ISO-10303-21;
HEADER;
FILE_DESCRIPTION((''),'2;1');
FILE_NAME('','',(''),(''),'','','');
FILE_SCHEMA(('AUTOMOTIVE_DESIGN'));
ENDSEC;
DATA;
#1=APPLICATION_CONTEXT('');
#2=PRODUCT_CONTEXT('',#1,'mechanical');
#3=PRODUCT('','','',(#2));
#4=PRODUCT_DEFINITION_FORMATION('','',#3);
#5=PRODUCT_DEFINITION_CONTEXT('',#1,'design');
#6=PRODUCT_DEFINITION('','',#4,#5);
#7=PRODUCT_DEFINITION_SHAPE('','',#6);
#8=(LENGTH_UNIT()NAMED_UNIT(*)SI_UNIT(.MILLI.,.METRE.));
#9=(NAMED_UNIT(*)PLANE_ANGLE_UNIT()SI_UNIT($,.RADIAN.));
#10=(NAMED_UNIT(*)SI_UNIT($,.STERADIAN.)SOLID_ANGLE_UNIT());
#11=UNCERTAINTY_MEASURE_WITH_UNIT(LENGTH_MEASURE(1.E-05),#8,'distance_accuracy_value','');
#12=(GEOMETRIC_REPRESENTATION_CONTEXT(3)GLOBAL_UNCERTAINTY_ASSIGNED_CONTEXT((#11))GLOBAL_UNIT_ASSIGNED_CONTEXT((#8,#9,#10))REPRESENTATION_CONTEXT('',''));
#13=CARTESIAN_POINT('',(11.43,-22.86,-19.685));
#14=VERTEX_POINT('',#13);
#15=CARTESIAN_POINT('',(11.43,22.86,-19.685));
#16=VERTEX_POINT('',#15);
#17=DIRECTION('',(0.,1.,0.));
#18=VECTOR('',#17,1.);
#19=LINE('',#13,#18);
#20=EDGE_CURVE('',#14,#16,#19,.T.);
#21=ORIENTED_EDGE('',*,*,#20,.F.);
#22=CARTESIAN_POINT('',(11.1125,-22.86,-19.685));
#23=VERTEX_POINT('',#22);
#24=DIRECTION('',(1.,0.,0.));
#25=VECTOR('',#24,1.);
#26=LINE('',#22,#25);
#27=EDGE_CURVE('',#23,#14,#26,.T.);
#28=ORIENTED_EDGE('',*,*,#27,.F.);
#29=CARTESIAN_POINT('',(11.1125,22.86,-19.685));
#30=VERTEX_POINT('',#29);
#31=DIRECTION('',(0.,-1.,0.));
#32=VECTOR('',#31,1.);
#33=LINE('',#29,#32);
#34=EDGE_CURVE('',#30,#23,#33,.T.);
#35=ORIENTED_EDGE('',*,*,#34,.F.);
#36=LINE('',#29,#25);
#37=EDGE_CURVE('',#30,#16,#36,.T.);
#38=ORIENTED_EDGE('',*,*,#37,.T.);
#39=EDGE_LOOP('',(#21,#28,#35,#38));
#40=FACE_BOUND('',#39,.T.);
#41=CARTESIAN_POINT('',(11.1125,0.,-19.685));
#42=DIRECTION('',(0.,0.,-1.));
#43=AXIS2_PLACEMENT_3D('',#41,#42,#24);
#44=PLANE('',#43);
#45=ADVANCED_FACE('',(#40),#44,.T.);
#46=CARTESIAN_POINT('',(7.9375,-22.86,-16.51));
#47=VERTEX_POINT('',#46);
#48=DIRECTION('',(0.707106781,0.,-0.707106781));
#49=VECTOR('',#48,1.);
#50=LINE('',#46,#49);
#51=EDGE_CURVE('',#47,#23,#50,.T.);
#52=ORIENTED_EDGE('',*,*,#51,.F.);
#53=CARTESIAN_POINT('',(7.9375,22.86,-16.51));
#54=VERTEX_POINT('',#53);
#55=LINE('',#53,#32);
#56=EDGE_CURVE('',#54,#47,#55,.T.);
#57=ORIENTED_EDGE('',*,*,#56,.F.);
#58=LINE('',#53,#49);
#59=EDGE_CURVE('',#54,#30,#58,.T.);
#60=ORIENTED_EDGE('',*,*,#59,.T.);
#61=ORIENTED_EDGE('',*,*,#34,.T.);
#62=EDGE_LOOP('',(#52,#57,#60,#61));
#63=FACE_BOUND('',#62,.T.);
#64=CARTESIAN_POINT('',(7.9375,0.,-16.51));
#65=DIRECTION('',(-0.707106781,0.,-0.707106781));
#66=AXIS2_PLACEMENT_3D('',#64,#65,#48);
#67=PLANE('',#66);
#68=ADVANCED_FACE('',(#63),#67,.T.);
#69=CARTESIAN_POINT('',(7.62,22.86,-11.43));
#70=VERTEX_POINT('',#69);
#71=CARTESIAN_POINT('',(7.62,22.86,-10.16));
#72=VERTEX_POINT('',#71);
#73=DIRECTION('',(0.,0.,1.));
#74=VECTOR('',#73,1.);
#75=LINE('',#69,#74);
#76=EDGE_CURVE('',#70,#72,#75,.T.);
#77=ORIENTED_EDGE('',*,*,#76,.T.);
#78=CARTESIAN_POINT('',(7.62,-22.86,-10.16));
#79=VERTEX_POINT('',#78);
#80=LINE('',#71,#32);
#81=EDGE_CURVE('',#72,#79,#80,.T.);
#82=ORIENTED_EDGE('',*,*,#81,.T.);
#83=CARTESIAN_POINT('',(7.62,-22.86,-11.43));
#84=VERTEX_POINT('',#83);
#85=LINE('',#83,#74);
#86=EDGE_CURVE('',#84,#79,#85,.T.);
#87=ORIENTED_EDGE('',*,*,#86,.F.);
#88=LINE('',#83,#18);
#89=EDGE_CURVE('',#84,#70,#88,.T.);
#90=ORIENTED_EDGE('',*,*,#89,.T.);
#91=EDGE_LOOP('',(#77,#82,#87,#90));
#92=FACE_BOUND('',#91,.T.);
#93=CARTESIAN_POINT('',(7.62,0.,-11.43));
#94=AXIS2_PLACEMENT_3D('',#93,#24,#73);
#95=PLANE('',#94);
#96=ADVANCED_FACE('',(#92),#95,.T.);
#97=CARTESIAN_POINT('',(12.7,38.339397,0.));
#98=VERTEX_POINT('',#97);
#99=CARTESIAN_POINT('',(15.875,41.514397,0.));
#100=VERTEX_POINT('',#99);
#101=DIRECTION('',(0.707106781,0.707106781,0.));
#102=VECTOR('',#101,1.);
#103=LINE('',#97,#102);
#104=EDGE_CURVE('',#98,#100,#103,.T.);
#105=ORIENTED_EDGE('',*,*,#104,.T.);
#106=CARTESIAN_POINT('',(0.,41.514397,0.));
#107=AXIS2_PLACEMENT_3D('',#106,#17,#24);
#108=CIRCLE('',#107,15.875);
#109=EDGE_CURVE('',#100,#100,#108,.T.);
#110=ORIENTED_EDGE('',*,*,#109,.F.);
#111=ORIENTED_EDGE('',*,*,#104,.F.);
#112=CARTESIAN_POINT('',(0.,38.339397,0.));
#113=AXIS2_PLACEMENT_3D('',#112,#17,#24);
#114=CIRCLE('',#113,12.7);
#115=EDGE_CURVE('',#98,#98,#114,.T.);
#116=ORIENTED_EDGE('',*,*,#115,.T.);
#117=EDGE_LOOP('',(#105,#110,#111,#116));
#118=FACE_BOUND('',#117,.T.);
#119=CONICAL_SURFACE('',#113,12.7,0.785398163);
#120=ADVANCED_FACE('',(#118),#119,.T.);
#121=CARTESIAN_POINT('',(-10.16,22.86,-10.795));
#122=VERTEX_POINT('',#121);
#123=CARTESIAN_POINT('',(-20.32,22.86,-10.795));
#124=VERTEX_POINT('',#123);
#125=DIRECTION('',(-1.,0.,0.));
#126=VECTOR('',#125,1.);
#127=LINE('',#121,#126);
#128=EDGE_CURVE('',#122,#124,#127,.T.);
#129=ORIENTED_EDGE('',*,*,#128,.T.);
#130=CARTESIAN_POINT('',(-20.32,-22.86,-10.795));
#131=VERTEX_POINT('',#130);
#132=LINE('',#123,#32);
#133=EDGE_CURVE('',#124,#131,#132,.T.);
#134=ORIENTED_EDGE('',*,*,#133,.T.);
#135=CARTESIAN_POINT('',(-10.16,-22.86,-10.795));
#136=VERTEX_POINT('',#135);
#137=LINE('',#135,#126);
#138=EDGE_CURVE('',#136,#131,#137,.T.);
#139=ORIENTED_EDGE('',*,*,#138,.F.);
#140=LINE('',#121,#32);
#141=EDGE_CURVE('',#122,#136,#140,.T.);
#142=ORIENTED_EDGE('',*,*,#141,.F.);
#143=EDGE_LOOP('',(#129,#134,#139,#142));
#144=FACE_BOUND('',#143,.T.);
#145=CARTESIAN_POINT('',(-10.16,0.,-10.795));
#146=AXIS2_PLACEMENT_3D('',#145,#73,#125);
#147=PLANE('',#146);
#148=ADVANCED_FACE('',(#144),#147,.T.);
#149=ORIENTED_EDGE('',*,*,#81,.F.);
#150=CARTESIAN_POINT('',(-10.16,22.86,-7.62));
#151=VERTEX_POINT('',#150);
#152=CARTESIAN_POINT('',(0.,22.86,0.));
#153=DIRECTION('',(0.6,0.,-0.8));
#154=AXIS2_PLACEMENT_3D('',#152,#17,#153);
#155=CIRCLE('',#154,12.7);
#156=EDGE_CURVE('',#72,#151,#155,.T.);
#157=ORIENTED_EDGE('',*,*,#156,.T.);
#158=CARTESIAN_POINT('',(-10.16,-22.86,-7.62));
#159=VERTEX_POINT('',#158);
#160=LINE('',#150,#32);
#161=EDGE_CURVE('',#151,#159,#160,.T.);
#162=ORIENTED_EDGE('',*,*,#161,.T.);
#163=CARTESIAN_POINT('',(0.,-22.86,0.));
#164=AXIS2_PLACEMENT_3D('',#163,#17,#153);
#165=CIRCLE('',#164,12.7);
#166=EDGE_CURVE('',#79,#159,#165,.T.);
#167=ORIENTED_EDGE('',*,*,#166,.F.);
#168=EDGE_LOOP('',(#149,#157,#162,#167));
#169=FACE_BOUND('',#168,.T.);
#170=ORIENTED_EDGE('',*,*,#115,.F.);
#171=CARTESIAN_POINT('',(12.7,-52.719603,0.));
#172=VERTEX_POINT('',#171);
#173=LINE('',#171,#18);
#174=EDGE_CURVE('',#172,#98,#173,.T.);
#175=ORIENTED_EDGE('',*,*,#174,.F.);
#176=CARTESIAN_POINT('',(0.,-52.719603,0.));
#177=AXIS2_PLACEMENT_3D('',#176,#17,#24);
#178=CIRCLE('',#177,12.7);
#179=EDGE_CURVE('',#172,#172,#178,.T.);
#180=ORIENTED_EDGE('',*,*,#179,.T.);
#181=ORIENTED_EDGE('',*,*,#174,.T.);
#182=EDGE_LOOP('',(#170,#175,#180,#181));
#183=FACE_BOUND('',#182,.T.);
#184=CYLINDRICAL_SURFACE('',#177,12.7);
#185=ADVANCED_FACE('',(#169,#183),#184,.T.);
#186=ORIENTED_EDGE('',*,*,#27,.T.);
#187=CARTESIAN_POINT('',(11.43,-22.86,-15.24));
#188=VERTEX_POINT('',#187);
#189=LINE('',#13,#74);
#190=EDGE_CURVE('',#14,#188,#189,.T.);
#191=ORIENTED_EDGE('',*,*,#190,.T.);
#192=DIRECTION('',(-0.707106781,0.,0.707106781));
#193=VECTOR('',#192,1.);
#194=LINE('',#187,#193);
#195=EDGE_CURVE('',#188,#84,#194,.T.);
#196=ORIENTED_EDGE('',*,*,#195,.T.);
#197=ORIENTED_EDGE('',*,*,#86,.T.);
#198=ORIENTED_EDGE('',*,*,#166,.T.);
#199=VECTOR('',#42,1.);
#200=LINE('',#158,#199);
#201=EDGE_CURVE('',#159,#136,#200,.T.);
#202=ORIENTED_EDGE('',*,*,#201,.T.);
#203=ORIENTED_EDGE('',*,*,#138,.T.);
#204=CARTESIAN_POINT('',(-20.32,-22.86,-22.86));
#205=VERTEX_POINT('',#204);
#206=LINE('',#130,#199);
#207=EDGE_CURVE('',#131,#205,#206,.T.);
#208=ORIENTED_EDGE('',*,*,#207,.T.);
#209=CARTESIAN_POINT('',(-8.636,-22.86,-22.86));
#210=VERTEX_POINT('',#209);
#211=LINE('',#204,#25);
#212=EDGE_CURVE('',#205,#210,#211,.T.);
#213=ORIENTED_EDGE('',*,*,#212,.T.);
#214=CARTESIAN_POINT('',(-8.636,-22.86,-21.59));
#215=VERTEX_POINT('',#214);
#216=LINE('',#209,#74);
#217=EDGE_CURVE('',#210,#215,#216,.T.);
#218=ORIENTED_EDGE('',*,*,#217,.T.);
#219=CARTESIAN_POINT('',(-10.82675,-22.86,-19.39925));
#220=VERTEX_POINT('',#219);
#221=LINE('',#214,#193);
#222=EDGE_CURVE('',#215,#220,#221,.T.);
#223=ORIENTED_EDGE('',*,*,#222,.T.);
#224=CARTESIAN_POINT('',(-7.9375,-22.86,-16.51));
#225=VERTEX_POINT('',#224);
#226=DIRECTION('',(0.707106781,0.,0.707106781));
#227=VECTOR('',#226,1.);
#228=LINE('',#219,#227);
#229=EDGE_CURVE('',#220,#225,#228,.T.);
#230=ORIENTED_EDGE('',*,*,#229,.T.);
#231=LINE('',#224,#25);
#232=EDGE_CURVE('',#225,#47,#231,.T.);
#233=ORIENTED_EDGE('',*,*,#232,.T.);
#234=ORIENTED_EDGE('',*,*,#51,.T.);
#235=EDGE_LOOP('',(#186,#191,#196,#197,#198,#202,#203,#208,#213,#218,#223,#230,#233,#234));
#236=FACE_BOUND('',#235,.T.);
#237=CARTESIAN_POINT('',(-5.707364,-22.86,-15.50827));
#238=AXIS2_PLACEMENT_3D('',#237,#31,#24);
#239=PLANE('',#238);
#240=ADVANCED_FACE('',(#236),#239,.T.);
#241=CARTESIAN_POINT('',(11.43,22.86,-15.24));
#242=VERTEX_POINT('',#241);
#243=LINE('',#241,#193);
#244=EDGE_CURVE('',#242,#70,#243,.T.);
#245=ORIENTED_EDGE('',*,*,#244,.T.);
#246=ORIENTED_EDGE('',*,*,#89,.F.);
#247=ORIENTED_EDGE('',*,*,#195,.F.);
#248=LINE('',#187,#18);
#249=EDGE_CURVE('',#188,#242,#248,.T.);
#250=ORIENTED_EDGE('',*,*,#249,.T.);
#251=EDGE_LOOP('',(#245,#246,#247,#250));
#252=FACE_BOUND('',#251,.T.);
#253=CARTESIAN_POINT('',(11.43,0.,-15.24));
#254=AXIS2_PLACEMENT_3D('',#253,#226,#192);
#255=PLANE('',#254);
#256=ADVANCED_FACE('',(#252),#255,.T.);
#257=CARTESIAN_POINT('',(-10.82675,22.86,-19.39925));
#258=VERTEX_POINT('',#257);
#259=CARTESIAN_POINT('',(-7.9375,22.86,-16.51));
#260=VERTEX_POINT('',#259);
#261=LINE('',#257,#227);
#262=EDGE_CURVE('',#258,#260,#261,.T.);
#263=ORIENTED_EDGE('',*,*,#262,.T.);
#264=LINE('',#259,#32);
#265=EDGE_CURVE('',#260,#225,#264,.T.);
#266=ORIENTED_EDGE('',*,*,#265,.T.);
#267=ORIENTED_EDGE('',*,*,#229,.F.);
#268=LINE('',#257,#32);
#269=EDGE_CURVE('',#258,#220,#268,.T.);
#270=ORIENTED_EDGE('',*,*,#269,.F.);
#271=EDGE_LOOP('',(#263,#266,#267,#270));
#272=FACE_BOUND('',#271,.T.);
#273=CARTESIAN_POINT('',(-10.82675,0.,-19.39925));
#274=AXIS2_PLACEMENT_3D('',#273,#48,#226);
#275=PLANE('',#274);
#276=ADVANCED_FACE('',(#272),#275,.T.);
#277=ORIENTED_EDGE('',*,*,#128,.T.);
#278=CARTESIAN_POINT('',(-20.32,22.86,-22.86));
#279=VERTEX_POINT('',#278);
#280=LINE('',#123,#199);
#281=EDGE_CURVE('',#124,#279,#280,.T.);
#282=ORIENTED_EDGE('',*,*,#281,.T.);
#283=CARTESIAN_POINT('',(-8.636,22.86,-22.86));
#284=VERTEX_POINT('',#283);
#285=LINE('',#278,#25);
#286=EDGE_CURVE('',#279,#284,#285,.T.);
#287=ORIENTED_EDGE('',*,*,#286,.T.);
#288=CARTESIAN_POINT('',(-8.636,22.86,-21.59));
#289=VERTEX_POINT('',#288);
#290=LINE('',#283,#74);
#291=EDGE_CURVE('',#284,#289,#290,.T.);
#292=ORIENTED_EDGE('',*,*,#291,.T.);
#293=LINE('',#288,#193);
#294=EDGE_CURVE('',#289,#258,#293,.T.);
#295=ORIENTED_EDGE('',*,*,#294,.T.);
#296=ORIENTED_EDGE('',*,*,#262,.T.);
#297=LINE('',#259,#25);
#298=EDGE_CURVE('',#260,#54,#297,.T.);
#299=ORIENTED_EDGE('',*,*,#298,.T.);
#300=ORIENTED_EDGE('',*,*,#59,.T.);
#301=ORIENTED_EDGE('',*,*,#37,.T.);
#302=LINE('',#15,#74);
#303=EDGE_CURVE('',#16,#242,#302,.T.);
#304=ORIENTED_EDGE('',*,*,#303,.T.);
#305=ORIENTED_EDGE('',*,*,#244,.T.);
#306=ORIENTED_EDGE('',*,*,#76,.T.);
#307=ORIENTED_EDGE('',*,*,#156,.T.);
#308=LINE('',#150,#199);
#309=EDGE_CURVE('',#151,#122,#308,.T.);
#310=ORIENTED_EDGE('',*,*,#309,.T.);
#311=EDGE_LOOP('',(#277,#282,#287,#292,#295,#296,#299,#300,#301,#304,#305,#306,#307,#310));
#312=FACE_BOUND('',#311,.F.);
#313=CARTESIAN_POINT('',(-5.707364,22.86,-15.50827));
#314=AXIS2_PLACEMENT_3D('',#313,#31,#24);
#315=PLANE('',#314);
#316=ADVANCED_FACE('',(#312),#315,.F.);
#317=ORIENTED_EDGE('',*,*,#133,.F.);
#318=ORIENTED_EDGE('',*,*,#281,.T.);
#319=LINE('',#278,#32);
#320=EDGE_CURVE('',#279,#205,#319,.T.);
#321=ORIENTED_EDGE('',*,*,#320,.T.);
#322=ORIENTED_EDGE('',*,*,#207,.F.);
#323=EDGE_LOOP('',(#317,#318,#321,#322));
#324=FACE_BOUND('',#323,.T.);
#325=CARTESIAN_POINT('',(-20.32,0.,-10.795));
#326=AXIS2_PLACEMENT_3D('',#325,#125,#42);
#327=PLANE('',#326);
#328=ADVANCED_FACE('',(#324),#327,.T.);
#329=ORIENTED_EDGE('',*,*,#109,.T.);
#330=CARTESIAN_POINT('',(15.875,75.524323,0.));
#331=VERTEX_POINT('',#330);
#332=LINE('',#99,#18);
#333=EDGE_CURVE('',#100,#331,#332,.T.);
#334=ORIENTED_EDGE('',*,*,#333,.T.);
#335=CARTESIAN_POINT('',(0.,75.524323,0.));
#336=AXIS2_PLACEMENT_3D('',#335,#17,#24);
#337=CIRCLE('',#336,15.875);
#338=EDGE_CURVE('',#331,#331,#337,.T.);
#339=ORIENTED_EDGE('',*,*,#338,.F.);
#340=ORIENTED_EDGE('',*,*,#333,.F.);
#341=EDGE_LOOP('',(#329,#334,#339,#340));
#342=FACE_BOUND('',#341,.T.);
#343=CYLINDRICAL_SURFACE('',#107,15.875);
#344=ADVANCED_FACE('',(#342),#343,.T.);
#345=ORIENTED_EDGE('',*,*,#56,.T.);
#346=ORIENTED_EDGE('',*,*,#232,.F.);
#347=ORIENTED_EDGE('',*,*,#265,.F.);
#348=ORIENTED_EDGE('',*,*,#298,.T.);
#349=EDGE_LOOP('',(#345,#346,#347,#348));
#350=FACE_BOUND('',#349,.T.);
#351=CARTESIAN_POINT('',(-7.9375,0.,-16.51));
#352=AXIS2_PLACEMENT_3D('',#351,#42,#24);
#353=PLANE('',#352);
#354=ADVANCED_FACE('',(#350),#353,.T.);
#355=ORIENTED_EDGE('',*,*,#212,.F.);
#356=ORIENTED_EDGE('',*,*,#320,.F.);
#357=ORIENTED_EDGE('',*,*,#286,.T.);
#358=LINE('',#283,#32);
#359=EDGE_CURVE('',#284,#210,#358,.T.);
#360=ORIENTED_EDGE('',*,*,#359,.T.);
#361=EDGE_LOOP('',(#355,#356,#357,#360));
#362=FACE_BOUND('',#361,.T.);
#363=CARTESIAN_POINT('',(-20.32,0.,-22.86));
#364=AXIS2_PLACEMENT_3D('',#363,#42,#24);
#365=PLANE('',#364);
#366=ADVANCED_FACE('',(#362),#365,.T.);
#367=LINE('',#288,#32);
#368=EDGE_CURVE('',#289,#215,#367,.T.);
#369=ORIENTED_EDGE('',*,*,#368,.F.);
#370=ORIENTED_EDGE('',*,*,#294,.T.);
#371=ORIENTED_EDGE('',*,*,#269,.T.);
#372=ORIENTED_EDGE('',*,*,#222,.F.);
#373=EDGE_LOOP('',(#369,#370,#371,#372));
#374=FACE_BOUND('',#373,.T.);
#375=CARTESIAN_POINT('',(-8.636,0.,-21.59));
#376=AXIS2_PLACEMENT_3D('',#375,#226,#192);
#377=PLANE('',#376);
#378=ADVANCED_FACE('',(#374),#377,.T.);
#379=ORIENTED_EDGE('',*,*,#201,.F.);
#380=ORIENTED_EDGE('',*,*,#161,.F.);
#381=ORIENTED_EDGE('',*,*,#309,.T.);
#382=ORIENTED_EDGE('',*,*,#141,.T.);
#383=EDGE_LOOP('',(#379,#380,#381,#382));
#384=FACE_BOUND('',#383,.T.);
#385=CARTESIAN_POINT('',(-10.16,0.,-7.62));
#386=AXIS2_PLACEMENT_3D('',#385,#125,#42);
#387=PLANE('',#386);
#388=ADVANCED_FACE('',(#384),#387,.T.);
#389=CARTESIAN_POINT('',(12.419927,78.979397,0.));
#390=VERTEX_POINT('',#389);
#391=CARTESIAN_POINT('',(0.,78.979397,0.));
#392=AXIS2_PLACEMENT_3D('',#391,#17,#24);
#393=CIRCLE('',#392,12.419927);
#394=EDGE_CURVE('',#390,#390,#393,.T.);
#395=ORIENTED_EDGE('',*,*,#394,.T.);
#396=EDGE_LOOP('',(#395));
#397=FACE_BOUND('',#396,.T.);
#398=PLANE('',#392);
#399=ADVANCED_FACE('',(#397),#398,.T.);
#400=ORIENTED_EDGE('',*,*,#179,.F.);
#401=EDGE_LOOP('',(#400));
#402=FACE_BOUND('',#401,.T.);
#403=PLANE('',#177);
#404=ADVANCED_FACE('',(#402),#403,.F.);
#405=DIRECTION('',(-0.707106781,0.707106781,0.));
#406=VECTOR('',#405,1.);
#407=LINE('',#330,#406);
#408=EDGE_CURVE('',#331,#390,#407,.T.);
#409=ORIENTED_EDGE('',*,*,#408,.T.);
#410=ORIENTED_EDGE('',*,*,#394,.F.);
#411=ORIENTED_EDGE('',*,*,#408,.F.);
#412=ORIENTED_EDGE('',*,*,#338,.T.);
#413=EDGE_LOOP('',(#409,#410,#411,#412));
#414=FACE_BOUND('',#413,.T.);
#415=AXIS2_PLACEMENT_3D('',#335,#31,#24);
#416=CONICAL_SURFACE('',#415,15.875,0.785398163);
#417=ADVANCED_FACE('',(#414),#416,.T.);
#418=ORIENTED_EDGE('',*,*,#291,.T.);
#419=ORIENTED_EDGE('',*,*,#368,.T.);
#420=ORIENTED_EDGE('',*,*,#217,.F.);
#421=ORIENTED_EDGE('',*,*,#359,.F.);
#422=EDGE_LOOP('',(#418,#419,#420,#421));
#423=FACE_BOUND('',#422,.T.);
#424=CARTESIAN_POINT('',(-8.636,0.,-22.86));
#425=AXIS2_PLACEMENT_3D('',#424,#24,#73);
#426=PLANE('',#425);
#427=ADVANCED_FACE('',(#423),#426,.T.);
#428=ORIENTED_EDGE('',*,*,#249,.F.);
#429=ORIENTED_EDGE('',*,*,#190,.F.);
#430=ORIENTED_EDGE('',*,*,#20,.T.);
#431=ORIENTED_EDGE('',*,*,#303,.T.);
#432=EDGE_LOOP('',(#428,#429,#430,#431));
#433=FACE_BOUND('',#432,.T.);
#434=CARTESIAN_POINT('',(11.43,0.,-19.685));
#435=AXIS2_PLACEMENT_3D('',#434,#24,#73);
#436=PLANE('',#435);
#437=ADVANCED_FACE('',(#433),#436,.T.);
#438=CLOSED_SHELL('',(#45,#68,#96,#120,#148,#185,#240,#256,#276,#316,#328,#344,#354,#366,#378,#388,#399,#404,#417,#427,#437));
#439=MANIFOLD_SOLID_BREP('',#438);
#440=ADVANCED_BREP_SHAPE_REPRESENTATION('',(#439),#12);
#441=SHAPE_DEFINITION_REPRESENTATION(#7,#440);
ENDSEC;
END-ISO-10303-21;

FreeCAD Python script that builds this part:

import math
import FreeCAD as App
import Part
import Sketcher
from FreeCAD import Vector
Q = App.Units.Quantity

doc = App.newDocument("Part")
body = doc.addObject("PartDesign::Body", "Body")

sketch1 = body.newObject("Sketcher::SketchObject", "Sketch")
sketch1.AttachmentSupport = (doc.getObject("XY_Plane"), [""])
sketch1.MapMode = "FlatFace"
sketch1.addGeometry([
    Part.LineSegment(Vector(12.4, 79, 0), Vector(0, 79, 0)),
    Part.LineSegment(Vector(0, 79, 0), Vector(0, -52.7, 0)),
    Part.LineSegment(Vector(0, -52.7, 0), Vector(12.7, -52.7, 0)),
    Part.LineSegment(Vector(12.7, -52.7, 0), Vector(12.7, 38.3, 0)),
    Part.LineSegment(Vector(12.7, 38.3, 0), Vector(15.9, 41.5, 0)),
    Part.LineSegment(Vector(15.9, 41.5, 0), Vector(15.9, 75.5, 0)),
    Part.LineSegment(Vector(15.9, 75.5, 0), Vector(12.4, 79, 0)),
], False)
sketch1.addConstraint([
    Sketcher.Constraint("Coincident", 0, 2, 1, 1),
    Sketcher.Constraint("Coincident", 1, 2, 2, 1),
    Sketcher.Constraint("Coincident", 2, 2, 3, 1),
    Sketcher.Constraint("Coincident", 3, 2, 4, 1),
    Sketcher.Constraint("Coincident", 4, 2, 5, 1),
    Sketcher.Constraint("Coincident", 5, 2, 6, 1),
    Sketcher.Constraint("Coincident", 6, 2, 0, 1),
    Sketcher.Constraint("Horizontal", 0),
    Sketcher.Constraint("Vertical", 1),
    Sketcher.Constraint("Horizontal", 2),
    Sketcher.Constraint("Vertical", 3),
    Sketcher.Constraint("Vertical", 5),
    Sketcher.Constraint("PointOnObject", 0, 2, -2),
    Sketcher.Constraint("Perpendicular", 4, 6),
    Sketcher.Constraint("DistanceX", 2, 1, 2, 2, Q("0.5 in")),
    Sketcher.Constraint("Angle", 4, Q("45 deg")),
    Sketcher.Constraint("DistanceY", 3, 2, 0, 2, Q("1.6 in")),
    Sketcher.Constraint("DistanceY", 1, 2, 1, 1, Q("5.185 in")),
    Sketcher.Constraint("DistanceY", 2, 2, 4, 2, Q("3.71 in")),
    Sketcher.Constraint("Distance", 6, 4.886212),
    Sketcher.Constraint("DistanceY", -1, 1, 0, 2, 78.979397),
])
revolution = body.newObject("PartDesign::Revolution", "Revolution")
revolution.Profile = sketch1
revolution.ReferenceAxis = (sketch1, ["V_Axis"])
revolution.Angle = 360

sketch2 = body.newObject("Sketcher::SketchObject", "Sketch001")
sketch2.AttachmentSupport = (doc.getObject("XZ_Plane"), [""])
sketch2.MapMode = "FlatFace"
sketch2.addGeometry([
    Part.LineSegment(Vector(7.62, -11.43, 0), Vector(7.62, -10.16, 0)),
    Part.ArcOfCircle(Part.Circle(Vector(0, 0, 0), Vector(0, 0, 1), 12.7), math.radians(-143), math.radians(-53)),
    Part.LineSegment(Vector(-10.16, -7.62, 0), Vector(-10.16, -10.79, 0)),
    Part.LineSegment(Vector(-10.16, -10.79, 0), Vector(-20.32, -10.79, 0)),
    Part.LineSegment(Vector(-20.32, -10.79, 0), Vector(-20.32, -22.86, 0)),
    Part.LineSegment(Vector(-20.32, -22.86, 0), Vector(-8.64, -22.86, 0)),
    Part.LineSegment(Vector(-8.64, -22.86, 0), Vector(-8.64, -21.59, 0)),
    Part.LineSegment(Vector(-8.64, -21.59, 0), Vector(-10.83, -19.4, 0)),
    Part.LineSegment(Vector(-10.83, -19.4, 0), Vector(-7.94, -16.51, 0)),
    Part.LineSegment(Vector(-7.94, -16.51, 0), Vector(7.94, -16.51, 0)),
    Part.LineSegment(Vector(7.94, -16.51, 0), Vector(11.11, -19.68, 0)),
    Part.LineSegment(Vector(11.11, -19.68, 0), Vector(11.43, -19.68, 0)),
    Part.LineSegment(Vector(11.43, -19.68, 0), Vector(11.43, -15.24, 0)),
    Part.LineSegment(Vector(11.43, -15.24, 0), Vector(7.62, -11.43, 0)),
], False)
sketch2.addConstraint([
    Sketcher.Constraint("Coincident", 0, 2, 1, 2),
    Sketcher.Constraint("Coincident", 1, 1, 2, 1),
    Sketcher.Constraint("Coincident", 2, 2, 3, 1),
    Sketcher.Constraint("Coincident", 3, 2, 4, 1),
    Sketcher.Constraint("Coincident", 4, 2, 5, 1),
    Sketcher.Constraint("Coincident", 5, 2, 6, 1),
    Sketcher.Constraint("Coincident", 6, 2, 7, 1),
    Sketcher.Constraint("Coincident", 7, 2, 8, 1),
    Sketcher.Constraint("Coincident", 8, 2, 9, 1),
    Sketcher.Constraint("Coincident", 9, 2, 10, 1),
    Sketcher.Constraint("Coincident", 10, 2, 11, 1),
    Sketcher.Constraint("Coincident", 11, 2, 12, 1),
    Sketcher.Constraint("Coincident", 12, 2, 13, 1),
    Sketcher.Constraint("Coincident", 13, 2, 0, 1),
    Sketcher.Constraint("Vertical", 0),
    Sketcher.Constraint("Vertical", 2),
    Sketcher.Constraint("Horizontal", 3),
    Sketcher.Constraint("Vertical", 4),
    Sketcher.Constraint("Horizontal", 5),
    Sketcher.Constraint("Vertical", 6),
    Sketcher.Constraint("Horizontal", 9),
    Sketcher.Constraint("Horizontal", 11),
    Sketcher.Constraint("Vertical", 12),
    Sketcher.Constraint("Coincident", 1, 3, -1, 1),
    Sketcher.Constraint("Perpendicular", 7, 8),
    Sketcher.Constraint("Perpendicular", 8, 10),
    Sketcher.Constraint("Parallel", 10, 13),
    Sketcher.Constraint("Equal", 0, 6),
    Sketcher.Constraint("Radius", 1, Q("0.5 in")),
    Sketcher.Constraint("DistanceX", 3, 2, 3, 1, Q("0.4 in")),
    Sketcher.Constraint("Angle", 7, Q("135 deg")),
    Sketcher.Constraint("DistanceX", 5, 1, 5, 2, Q("0.46 in")),
    Sketcher.Constraint("DistanceY", 0, 1, 0, 2, Q("0.05 in")),
    Sketcher.Constraint("DistanceX", -1, 1, 0, 2, Q("0.3 in")),
    Sketcher.Constraint("DistanceX", 1, 1, -1, 1, Q("0.4 in")),
    Sketcher.Constraint("DistanceY", 4, 2, -1, 1, Q("0.9 in")),
    Sketcher.Constraint("DistanceY", 12, 2, -1, 1, Q("0.6 in")),
    Sketcher.Constraint("DistanceY", 6, 2, 8, 2, Q("0.2 in")),
    Sketcher.Constraint("DistanceX", 9, 1, 9, 2, Q("0.625 in")),
    Sketcher.Constraint("DistanceY", 2, 2, 2, 1, Q("0.125 in")),
    Sketcher.Constraint("DistanceY", 12, 1, 12, 2, Q("0.175 in")),
    Sketcher.Constraint("DistanceX", 11, 1, 11, 2, Q("0.0125 in")),
])
pad1 = body.newObject("PartDesign::Pad", "Pad")
pad1.Profile = sketch2
pad1.Length = Q("1.8 in")
pad1.Midplane = True

doc.recompute()
